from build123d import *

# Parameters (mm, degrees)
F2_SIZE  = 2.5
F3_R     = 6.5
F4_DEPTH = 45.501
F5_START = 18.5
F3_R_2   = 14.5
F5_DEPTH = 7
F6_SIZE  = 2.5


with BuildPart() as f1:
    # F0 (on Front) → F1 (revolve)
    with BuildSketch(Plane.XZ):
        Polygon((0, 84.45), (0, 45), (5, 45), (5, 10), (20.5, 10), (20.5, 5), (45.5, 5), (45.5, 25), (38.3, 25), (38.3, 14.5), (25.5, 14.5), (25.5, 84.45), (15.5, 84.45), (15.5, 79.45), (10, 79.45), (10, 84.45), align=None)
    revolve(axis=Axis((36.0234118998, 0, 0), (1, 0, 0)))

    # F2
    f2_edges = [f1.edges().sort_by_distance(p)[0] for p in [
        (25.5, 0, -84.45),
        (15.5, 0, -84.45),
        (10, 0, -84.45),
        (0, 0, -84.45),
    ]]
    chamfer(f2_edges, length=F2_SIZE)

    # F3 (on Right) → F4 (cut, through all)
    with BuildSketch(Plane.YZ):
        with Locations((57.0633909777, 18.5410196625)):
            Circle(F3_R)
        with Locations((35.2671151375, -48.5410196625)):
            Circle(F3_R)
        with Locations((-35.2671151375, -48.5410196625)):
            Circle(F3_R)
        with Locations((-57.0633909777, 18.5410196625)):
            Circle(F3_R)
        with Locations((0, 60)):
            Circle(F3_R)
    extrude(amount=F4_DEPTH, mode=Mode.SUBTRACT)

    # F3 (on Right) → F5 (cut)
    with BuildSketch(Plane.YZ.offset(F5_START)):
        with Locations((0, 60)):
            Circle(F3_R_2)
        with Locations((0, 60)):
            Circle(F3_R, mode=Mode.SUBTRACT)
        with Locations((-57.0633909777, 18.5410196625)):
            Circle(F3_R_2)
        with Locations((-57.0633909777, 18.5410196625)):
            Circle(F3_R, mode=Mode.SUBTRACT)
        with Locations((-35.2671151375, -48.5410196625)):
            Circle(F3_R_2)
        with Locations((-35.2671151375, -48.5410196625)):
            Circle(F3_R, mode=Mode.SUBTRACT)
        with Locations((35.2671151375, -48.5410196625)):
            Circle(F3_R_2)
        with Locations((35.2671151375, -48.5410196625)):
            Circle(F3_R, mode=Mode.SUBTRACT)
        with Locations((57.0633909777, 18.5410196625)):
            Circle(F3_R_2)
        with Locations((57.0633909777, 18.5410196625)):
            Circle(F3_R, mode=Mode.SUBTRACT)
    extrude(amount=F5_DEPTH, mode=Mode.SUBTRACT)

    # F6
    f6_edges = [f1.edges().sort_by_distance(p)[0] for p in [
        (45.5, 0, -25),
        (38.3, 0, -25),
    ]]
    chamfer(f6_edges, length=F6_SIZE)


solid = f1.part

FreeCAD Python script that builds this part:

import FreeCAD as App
import Part
import Sketcher

V = App.Vector


def edges_at(feature, points):
    """Names of the edges that pass closest to the given points."""
    edges = feature.Shape.Edges
    near = lambda p: min(range(len(edges)), key=lambda i: edges[i].distToShape(Part.Vertex(*p))[0])
    return sorted({f"Edge{near(p) + 1}" for p in points})

doc = App.newDocument("Part")
body = doc.addObject("PartDesign::Body", "Body")

sketch1 = doc.addObject("Sketcher::SketchObject", "Sketch")
body.addObject(sketch1)
sketch1.AttachmentSupport = (doc.XZ_Plane, [""])
sketch1.MapMode = "FlatFace"
sketch1.addGeometry([
    Part.LineSegment(V(0, 84.45, 0), V(0, 45, 0)),
    Part.LineSegment(V(0, 45, 0), V(5, 45, 0)),
    Part.LineSegment(V(5, 45, 0), V(5, 10, 0)),
    Part.LineSegment(V(5, 10, 0), V(20.5, 10, 0)),
    Part.LineSegment(V(20.5, 10, 0), V(20.5, 5, 0)),
    Part.LineSegment(V(20.5, 5, 0), V(45.5, 5, 0)),
    Part.LineSegment(V(45.5, 5, 0), V(45.5, 25, 0)),
    Part.LineSegment(V(45.5, 25, 0), V(38.3, 25, 0)),
    Part.LineSegment(V(38.3, 25, 0), V(38.3, 14.5, 0)),
    Part.LineSegment(V(38.3, 14.5, 0), V(25.5, 14.5, 0)),
    Part.LineSegment(V(25.5, 14.5, 0), V(25.5, 84.45, 0)),
    Part.LineSegment(V(25.5, 84.45, 0), V(15.5, 84.45, 0)),
    Part.LineSegment(V(15.5, 84.45, 0), V(15.5, 79.45, 0)),
    Part.LineSegment(V(15.5, 79.45, 0), V(10, 79.45, 0)),
    Part.LineSegment(V(10, 79.45, 0), V(10, 84.45, 0)),
    Part.LineSegment(V(10, 84.45, 0), V(0, 84.45, 0)),
], False)
sketch1.addConstraint([
    Sketcher.Constraint("Coincident", 0, 2, 1, 1),
    Sketcher.Constraint("Coincident", 1, 2, 2, 1),
    Sketcher.Constraint("Coincident", 2, 2, 3, 1),
    Sketcher.Constraint("Coincident", 3, 2, 4, 1),
    Sketcher.Constraint("Coincident", 4, 2, 5, 1),
    Sketcher.Constraint("Coincident", 5, 2, 6, 1),
    Sketcher.Constraint("Coincident", 6, 2, 7, 1),
    Sketcher.Constraint("Coincident", 7, 2, 8, 1),
    Sketcher.Constraint("Coincident", 8, 2, 9, 1),
    Sketcher.Constraint("Coincident", 9, 2, 10, 1),
    Sketcher.Constraint("Coincident", 10, 2, 11, 1),
    Sketcher.Constraint("Coincident", 11, 2, 12, 1),
    Sketcher.Constraint("Coincident", 12, 2, 13, 1),
    Sketcher.Constraint("Coincident", 13, 2, 14, 1),
    Sketcher.Constraint("Coincident", 14, 2, 15, 1),
    Sketcher.Constraint("Coincident", 15, 2, 0, 1),
    Sketcher.Constraint("Vertical", 0),
    Sketcher.Constraint("Horizontal", 1),
    Sketcher.Constraint("Vertical", 2),
    Sketcher.Constraint("Horizontal", 3),
    Sketcher.Constraint("Vertical", 4),
    Sketcher.Constraint("Horizontal", 5),
    Sketcher.Constraint("Vertical", 6),
    Sketcher.Constraint("Horizontal", 7),
    Sketcher.Constraint("Vertical", 8),
    Sketcher.Constraint("Horizontal", 9),
    Sketcher.Constraint("Vertical", 10),
    Sketcher.Constraint("Horizontal", 11),
    Sketcher.Constraint("Vertical", 12),
    Sketcher.Constraint("Horizontal", 13),
    Sketcher.Constraint("Vertical", 14),
    Sketcher.Constraint("Horizontal", 15),
    Sketcher.Constraint("PointOnObject", 0, 2, -2),
    Sketcher.Constraint("Horizontal", 11, 2, 14, 2),
    Sketcher.Constraint("Equal", 11, 15),
    Sketcher.Constraint("Equal", 1, 4),
    Sketcher.Constraint("Equal", 4, 12),
    Sketcher.Constraint("DistanceX", 1, 1, 1, 2, 5.0),
    Sketcher.Constraint("DistanceX", 5, 1, 5, 2, 25.0),
    Sketcher.Constraint("DistanceX", 11, 2, 11, 1, 10.0),
    Sketcher.Constraint("DistanceY", 2, 2, 2, 1, 35.0),
    Sketcher.Constraint("DistanceY", 6, 1, 6, 2, 20.0),
    Sketcher.Constraint("DistanceX", 3, 1, 3, 2, 15.5),
    Sketcher.Constraint("DistanceX", 7, 2, 7, 1, 7.2),
    Sketcher.Constraint("DistanceX", 9, 2, 9, 1, 12.8),
    Sketcher.Constraint("DistanceY", 8, 2, 8, 1, 10.5),
    Sketcher.Constraint("DistanceY", -1, 1, 0, 2, 45.0),
    Sketcher.Constraint("DistanceY", 0, 2, 0, 1, 39.45),
])
revolution = doc.addObject("PartDesign::Revolution", "Revolution")
body.addObject(revolution)
revolution.Profile = sketch1
revolution.ReferenceAxis = (sketch1, ["H_Axis"])
revolution.Angle = 360
doc.recompute()

chamfer = doc.addObject("PartDesign::Chamfer", "Chamfer")
body.addObject(chamfer)
chamfer.Base = (revolution, edges_at(revolution, [
    (25.5, 0, -84.45),
    (15.5, 0, -84.45),
    (10, 0, -84.45),
    (0, 0, -84.45),
]))
chamfer.Size = 2.5

sketch2 = doc.addObject("Sketcher::SketchObject", "Sketch001")
body.addObject(sketch2)
sketch2.AttachmentSupport = (doc.YZ_Plane, [""])
sketch2.MapMode = "FlatFace"
sketch2.addGeometry([
    Part.Circle(V(57.063391, 18.54102, 0), V(0, 0, 1), 6.5),
    Part.Circle(V(35.267115, -48.54102, 0), V(0, 0, 1), 6.5),
    Part.Circle(V(-35.267115, -48.54102, 0), V(0, 0, 1), 6.5),
    Part.Circle(V(-57.063391, 18.54102, 0), V(0, 0, 1), 6.5),
    Part.Circle(V(0, 60, 0), V(0, 0, 1), 6.5),
], False)
sketch2.addConstraint([
    Sketcher.Constraint("Equal", 0, 1),
    Sketcher.Constraint("Equal", 1, 2),
    Sketcher.Constraint("Equal", 2, 3),
    Sketcher.Constraint("Equal", 3, 4),
    Sketcher.Constraint("Symmetric", 1, 3, 2, 3, -2),
    Sketcher.Constraint("Symmetric", 0, 3, 3, 3, -2),
    Sketcher.Constraint("PointOnObject", 4, 3, -2),
    Sketcher.Constraint("Diameter", 0, 13.0),
    Sketcher.Constraint("DistanceY", -1, 1, 4, 3, 60.0),
    Sketcher.Constraint("DistanceX", -1, 1, 0, 3, 57.063391),
    Sketcher.Constraint("DistanceY", -1, 1, 0, 3, 18.54102),
    Sketcher.Constraint("DistanceY", 1, 3, -1, 1, 48.54102),
    Sketcher.Constraint("DistanceX", 2, 3, 1, 3, 70.53423),
])
pocket1 = doc.addObject("PartDesign::Pocket", "Pocket")
body.addObject(pocket1)
pocket1.Profile = sketch2
pocket1.Type = "ThroughAll"
pocket1.Reversed = True

sketch3 = doc.addObject("Sketcher::SketchObject", "Sketch002")
body.addObject(sketch3)
sketch3.AttachmentSupport = (doc.YZ_Plane, [""])
sketch3.MapMode = "FlatFace"
sketch3.AttachmentOffset = App.Placement(V(0, 0, 18.5), App.Rotation())
sketch3.addGeometry([
    Part.Circle(V(0, 60, 0), V(0, 0, 1), 14.5),
    Part.Circle(V(0, 60, 0), V(0, 0, 1), 6.5),
    Part.Circle(V(-57.063391, 18.54102, 0), V(0, 0, 1), 14.5),
    Part.Circle(V(-57.063391, 18.54102, 0), V(0, 0, 1), 6.5),
    Part.Circle(V(-35.267115, -48.54102, 0), V(0, 0, 1), 14.5),
    Part.Circle(V(-35.267115, -48.54102, 0), V(0, 0, 1), 6.5),
    Part.Circle(V(35.267115, -48.54102, 0), V(0, 0, 1), 14.5),
    Part.Circle(V(35.267115, -48.54102, 0), V(0, 0, 1), 6.5),
    Part.Circle(V(57.063391, 18.54102, 0), V(0, 0, 1), 14.5),
    Part.Circle(V(57.063391, 18.54102, 0), V(0, 0, 1), 6.5),
], False)
sketch3.addConstraint([
    Sketcher.Constraint("Coincident", 1, 3, 0, 3),
    Sketcher.Constraint("Coincident", 3, 3, 2, 3),
    Sketcher.Constraint("Coincident", 5, 3, 4, 3),
    Sketcher.Constraint("Coincident", 7, 3, 6, 3),
    Sketcher.Constraint("Coincident", 9, 3, 8, 3),
    Sketcher.Constraint("Equal", 0, 2),
    Sketcher.Constraint("Equal", 1, 3),
    Sketcher.Constraint("Equal", 2, 4),
    Sketcher.Constraint("Equal", 3, 5),
    Sketcher.Constraint("Equal", 4, 6),
    Sketcher.Constraint("Equal", 5, 7),
    Sketcher.Constraint("Equal", 6, 8),
    Sketcher.Constraint("Equal", 7, 9),
    Sketcher.Constraint("Symmetric", 4, 3, 6, 3, -2),
    Sketcher.Constraint("Symmetric", 2, 3, 8, 3, -2),
    Sketcher.Constraint("PointOnObject", 0, 3, -2),
    Sketcher.Constraint("Diameter", 0, 29.0),
    Sketcher.Constraint("Diameter", 1, 13.0),
    Sketcher.Constraint("DistanceY", -1, 1, 0, 3, 60.0),
    Sketcher.Constraint("DistanceX", 2, 3, -1, 1, 57.063391),
    Sketcher.Constraint("DistanceY", -1, 1, 2, 3, 18.54102),
    Sketcher.Constraint("DistanceY", 4, 3, -1, 1, 48.54102),
    Sketcher.Constraint("DistanceX", 4, 3, 6, 3, 70.53423),
])
pocket2 = doc.addObject("PartDesign::Pocket", "Pocket001")
body.addObject(pocket2)
pocket2.Profile = sketch3
pocket2.Length = 7
pocket2.Reversed = True
doc.recompute()

chamfer2 = doc.addObject("PartDesign::Chamfer", "Chamfer001")
body.addObject(chamfer2)
chamfer2.Base = (pocket2, edges_at(pocket2, [(45.5, 0, -25), (38.3, 0, -25)]))
chamfer2.Size = 2.5

doc.recompute()
